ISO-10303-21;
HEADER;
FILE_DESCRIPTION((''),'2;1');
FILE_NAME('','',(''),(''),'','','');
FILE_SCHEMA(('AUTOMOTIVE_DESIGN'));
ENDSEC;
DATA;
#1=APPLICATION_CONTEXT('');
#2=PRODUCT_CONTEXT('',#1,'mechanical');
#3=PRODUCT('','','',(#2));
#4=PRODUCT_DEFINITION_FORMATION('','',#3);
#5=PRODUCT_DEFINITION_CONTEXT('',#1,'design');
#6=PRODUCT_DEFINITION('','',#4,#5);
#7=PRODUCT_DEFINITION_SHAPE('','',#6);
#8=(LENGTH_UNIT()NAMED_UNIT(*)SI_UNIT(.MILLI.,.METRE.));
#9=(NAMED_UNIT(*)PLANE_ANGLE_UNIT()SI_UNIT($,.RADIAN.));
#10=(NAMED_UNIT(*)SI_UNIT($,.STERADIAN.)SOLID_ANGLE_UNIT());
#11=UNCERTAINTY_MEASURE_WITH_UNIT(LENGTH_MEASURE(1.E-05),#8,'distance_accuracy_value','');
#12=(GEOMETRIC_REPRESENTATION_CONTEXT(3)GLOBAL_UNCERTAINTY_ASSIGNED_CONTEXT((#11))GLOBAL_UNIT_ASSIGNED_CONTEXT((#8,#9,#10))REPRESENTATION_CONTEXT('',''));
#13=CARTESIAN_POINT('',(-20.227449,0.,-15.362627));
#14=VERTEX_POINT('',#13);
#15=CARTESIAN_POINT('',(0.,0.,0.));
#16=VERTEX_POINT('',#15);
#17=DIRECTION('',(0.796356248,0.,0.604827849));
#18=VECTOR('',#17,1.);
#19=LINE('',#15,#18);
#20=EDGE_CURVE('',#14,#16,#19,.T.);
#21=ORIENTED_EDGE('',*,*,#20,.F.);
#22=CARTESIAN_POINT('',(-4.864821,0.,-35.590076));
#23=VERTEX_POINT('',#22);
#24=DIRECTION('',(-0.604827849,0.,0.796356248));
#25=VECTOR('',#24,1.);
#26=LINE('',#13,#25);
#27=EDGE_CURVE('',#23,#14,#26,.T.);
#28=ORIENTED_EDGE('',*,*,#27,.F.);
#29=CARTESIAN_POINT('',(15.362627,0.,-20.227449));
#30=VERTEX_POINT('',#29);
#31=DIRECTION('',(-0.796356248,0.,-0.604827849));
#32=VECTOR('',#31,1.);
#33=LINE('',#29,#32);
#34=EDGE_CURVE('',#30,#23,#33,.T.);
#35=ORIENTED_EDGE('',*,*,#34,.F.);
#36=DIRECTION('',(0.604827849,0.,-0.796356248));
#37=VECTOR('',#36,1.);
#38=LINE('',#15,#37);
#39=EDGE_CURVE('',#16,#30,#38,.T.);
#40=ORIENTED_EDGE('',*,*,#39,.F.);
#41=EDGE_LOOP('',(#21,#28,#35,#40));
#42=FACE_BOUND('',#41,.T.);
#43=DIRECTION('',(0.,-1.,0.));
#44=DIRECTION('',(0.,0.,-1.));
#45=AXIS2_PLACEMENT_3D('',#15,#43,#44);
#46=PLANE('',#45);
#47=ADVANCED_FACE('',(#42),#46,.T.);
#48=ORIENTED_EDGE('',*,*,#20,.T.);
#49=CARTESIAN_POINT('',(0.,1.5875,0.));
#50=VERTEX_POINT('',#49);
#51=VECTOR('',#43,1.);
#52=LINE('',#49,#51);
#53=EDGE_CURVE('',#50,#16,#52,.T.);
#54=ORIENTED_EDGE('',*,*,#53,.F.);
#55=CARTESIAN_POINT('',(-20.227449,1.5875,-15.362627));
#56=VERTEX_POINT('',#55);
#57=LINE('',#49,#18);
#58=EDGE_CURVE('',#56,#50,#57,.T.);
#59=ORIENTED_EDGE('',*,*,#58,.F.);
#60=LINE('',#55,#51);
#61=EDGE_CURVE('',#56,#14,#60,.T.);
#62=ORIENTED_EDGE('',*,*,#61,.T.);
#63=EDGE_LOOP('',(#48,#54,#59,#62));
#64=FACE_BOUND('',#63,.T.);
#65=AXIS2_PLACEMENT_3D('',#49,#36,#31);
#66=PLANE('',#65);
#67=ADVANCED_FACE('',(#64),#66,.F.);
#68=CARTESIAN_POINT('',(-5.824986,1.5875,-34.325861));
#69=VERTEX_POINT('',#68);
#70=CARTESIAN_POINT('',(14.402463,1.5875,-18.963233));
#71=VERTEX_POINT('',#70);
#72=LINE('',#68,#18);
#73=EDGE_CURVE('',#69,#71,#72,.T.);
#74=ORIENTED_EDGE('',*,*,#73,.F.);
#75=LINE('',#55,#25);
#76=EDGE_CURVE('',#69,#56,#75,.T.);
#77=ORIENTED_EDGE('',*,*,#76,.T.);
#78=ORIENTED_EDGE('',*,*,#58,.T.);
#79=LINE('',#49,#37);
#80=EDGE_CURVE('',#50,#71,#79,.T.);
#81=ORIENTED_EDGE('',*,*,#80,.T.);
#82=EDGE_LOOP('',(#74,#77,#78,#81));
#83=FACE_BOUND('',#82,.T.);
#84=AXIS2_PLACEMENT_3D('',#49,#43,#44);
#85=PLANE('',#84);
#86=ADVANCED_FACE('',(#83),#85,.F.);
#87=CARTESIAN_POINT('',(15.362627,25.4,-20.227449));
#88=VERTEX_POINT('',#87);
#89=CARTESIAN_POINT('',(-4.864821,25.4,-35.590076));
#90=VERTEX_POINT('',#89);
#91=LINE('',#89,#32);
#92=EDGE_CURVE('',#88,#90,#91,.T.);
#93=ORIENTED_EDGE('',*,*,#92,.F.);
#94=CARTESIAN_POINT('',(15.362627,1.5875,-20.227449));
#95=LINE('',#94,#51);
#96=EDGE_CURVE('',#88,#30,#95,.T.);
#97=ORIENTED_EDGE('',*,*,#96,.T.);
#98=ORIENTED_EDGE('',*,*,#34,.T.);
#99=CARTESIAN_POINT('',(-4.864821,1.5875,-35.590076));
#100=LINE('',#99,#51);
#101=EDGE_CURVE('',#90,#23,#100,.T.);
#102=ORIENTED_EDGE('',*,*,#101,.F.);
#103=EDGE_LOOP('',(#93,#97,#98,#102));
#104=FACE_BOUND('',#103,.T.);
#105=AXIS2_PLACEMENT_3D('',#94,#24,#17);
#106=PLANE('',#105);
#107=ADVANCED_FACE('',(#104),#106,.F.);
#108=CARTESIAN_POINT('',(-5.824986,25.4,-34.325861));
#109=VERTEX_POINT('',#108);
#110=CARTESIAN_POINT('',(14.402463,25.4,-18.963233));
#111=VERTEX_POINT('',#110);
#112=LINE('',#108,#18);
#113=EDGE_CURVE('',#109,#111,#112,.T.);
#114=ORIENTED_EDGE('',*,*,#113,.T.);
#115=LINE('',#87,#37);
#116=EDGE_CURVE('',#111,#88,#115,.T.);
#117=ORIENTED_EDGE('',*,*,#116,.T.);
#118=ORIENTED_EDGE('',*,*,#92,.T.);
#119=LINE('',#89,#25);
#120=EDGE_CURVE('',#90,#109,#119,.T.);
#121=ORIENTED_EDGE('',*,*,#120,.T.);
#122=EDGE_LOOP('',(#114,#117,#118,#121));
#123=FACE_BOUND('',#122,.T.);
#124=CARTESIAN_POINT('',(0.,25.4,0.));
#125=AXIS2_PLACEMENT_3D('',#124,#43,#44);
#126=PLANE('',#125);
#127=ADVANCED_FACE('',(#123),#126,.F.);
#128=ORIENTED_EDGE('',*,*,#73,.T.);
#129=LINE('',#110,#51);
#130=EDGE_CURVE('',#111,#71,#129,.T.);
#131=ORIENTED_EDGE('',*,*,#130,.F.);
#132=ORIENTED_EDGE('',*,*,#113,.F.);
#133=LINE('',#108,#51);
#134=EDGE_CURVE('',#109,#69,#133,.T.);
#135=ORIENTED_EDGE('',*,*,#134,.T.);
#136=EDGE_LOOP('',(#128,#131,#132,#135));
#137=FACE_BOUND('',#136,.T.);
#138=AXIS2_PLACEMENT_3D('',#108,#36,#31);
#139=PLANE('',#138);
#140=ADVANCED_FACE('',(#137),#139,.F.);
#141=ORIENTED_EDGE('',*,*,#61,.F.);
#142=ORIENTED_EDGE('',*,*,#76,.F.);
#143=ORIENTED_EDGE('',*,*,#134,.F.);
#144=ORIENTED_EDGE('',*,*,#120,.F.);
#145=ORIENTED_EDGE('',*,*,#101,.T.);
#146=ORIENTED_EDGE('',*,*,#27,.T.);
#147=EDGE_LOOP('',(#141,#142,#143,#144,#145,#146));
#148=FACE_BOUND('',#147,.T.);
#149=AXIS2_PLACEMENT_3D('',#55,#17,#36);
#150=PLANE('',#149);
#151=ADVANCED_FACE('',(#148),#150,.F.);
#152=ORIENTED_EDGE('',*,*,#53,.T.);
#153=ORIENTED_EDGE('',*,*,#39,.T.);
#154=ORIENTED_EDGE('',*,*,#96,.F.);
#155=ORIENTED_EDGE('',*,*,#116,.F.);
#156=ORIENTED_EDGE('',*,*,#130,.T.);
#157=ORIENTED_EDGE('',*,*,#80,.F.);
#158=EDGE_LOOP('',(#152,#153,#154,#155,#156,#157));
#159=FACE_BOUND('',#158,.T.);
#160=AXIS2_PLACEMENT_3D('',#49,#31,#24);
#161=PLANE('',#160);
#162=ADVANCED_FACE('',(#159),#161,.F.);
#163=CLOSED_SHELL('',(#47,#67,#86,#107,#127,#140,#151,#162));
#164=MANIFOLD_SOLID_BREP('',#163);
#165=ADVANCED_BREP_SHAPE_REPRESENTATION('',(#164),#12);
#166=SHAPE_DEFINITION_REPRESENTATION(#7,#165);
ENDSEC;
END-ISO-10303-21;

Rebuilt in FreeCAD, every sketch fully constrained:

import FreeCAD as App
import Part
import Sketcher

V = App.Vector
Q = App.Units.Quantity

doc = App.newDocument("Part")
body = doc.addObject("PartDesign::Body", "Body")

# Sketch on XZ plane
sketch1 = body.newObject("Sketcher::SketchObject", "Sketch")
sketch1.AttachmentSupport = (doc.getObject("XZ_Plane"), [""])
sketch1.MapMode = "FlatFace"
sketch1.addGeometry(Part.LineSegment(V(0, 0, 0), V(15.362627, -20.227449, 0)), False)
sketch1.addGeometry(Part.LineSegment(V(15.362627, -20.227449, 0), V(-4.864821, -35.590076, 0)), False)
sketch1.addGeometry(Part.LineSegment(V(-4.864821, -35.590076, 0), V(-20.227449, -15.362627, 0)), False)
sketch1.addGeometry(Part.LineSegment(V(-20.227449, -15.362627, 0), V(0, 0, 0)), False)
sketch1.addConstraint(Sketcher.Constraint("Coincident", 0, 2, 1, 1))
sketch1.addConstraint(Sketcher.Constraint("Coincident", 1, 2, 2, 1))
sketch1.addConstraint(Sketcher.Constraint("Coincident", 2, 2, 3, 1))
sketch1.addConstraint(Sketcher.Constraint("Coincident", 3, 2, 0, 1))
sketch1.addConstraint(Sketcher.Constraint("Coincident", 3, 2, -1, 1))
sketch1.addConstraint(Sketcher.Constraint("Perpendicular", 0, 1))
sketch1.addConstraint(Sketcher.Constraint("Perpendicular", 1, 2))
sketch1.addConstraint(Sketcher.Constraint("Perpendicular", 2, 3))
sketch1.addConstraint(Sketcher.Constraint("Equal", 0, 1))
sketch1.addConstraint(Sketcher.Constraint("Distance", 0, Q("1 in")))
sketch1.addConstraint(Sketcher.Constraint("DistanceY", 0, 2, -1, 1, 20.227449))
pad1 = body.newObject("PartDesign::Pad", "Pad")
pad1.Profile = sketch1
pad1.Length = Q("0.0625 in")
pad1.Reversed = True

# Sketch on XZ plane
sketch2 = body.newObject("Sketcher::SketchObject", "Sketch001")
sketch2.AttachmentSupport = (doc.getObject("XZ_Plane"), [""])
sketch2.MapMode = "FlatFace"
sketch2.AttachmentOffset = App.Placement(V(0, 0, -0.0625 * 25.4), App.Rotation())
sketch2.addGeometry(Part.LineSegment(V(-4.864821, -35.590076, 0), V(-5.824986, -34.325861, 0)), False)
sketch2.addGeometry(Part.LineSegment(V(-5.824986, -34.325861, 0), V(14.402463, -18.963233, 0)), False)
sketch2.addGeometry(Part.LineSegment(V(14.402463, -18.963233, 0), V(15.362627, -20.227449, 0)), False)
sketch2.addGeometry(Part.LineSegment(V(15.362627, -20.227449, 0), V(-4.864821, -35.590076, 0)), False)
sketch2.addConstraint(Sketcher.Constraint("Coincident", 0, 2, 1, 1))
sketch2.addConstraint(Sketcher.Constraint("Coincident", 1, 2, 2, 1))
sketch2.addConstraint(Sketcher.Constraint("Coincident", 2, 2, 3, 1))
sketch2.addConstraint(Sketcher.Constraint("Coincident", 3, 2, 0, 1))
sketch2.addConstraint(Sketcher.Constraint("Perpendicular", 0, 1))
sketch2.addConstraint(Sketcher.Constraint("Perpendicular", 1, 2))
sketch2.addConstraint(Sketcher.Constraint("Perpendicular", 2, 3))
sketch2.addConstraint(Sketcher.Constraint("Distance", 1, Q("1 in")))
sketch2.addConstraint(Sketcher.Constraint("Distance", 0, Q("0.0625 in")))
sketch2.addConstraint(Sketcher.Constraint("DistanceY", 3, 2, 1, 2, Q("0.6546001 in")))
sketch2.addConstraint(Sketcher.Constraint("DistanceY", 0, 2, -1, 1, 34.325861))
sketch2.addConstraint(Sketcher.Constraint("DistanceX", 3, 2, -1, 1, 4.864821))
pad2 = body.newObject("PartDesign::Pad", "Pad001")
pad2.Profile = sketch2
pad2.Length = Q("0.9375 in")
pad2.Reversed = True

doc.recompute()
